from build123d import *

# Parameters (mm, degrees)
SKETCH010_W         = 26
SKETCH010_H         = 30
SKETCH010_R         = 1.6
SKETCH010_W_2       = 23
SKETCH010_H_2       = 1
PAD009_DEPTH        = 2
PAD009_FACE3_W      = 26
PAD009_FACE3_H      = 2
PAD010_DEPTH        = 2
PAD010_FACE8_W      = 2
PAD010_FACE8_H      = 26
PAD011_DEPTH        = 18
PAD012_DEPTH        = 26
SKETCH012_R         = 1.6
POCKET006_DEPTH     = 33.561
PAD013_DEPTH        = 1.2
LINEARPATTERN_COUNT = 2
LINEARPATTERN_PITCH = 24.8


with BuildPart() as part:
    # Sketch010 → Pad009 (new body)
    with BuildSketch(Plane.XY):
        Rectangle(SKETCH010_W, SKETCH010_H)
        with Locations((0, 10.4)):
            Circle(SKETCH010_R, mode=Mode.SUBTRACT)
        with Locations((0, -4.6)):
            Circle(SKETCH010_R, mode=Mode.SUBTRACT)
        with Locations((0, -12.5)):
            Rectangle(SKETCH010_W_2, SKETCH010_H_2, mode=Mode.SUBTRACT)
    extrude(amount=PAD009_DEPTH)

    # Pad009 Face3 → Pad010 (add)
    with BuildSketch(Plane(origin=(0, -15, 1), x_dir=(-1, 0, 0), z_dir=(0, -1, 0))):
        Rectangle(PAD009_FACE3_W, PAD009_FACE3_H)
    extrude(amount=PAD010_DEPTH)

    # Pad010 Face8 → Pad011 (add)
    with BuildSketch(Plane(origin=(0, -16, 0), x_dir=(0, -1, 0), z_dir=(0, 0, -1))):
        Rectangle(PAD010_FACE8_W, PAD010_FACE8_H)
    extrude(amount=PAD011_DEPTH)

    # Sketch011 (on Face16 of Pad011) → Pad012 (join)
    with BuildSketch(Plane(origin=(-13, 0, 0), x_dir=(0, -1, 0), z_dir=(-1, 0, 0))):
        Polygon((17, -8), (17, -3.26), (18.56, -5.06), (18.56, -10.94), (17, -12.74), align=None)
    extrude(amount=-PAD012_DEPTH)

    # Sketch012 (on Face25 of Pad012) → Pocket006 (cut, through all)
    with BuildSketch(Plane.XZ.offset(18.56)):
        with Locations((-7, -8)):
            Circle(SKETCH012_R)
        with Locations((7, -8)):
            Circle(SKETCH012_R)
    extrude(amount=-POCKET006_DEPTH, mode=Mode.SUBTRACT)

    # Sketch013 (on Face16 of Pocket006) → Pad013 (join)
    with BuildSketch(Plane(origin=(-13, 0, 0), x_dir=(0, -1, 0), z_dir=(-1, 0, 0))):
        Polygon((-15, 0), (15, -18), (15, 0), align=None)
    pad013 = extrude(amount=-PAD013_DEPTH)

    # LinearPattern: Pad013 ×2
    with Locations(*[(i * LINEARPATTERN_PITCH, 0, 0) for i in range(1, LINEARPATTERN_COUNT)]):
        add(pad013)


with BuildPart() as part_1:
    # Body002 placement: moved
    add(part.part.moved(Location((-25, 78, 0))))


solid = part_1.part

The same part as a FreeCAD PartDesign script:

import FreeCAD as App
import Part
import Sketcher
Q = App.Units.Quantity

doc = App.newDocument("Part")
body = doc.addObject("PartDesign::Body", "Body")

# Sketch on XY plane
sketch1 = doc.addObject("Sketcher::SketchObject", "Sketch")
body.addObject(sketch1)
sketch1.AttachmentSupport = (doc.XY_Plane, [""])
sketch1.MapMode = "FlatFace"
sketch1.addGeometry(Part.LineSegment(App.Vector(-13, 15, 0), App.Vector(-13, -15, 0)), False)
sketch1.addGeometry(Part.LineSegment(App.Vector(-13, -15, 0), App.Vector(13, -15, 0)), False)
sketch1.addGeometry(Part.LineSegment(App.Vector(13, -15, 0), App.Vector(13, 15, 0)), False)
sketch1.addGeometry(Part.LineSegment(App.Vector(13, 15, 0), App.Vector(-13, 15, 0)), False)
sketch1.addGeometry(Part.LineSegment(App.Vector(11.5, -13, 0), App.Vector(-11.5, -13, 0)), False)
sketch1.addGeometry(Part.LineSegment(App.Vector(-11.5, -13, 0), App.Vector(-11.5, -12, 0)), False)
sketch1.addGeometry(Part.LineSegment(App.Vector(-11.5, -12, 0), App.Vector(11.5, -12, 0)), False)
sketch1.addGeometry(Part.LineSegment(App.Vector(11.5, -12, 0), App.Vector(11.5, -13, 0)), False)
sketch1.addGeometry(Part.Circle(App.Vector(0, -4.6, 0), App.Vector(0, 0, 1), 1.6), False)
sketch1.addGeometry(Part.Circle(App.Vector(0, 10.4, 0), App.Vector(0, 0, 1), 1.6), False)
sketch1.addConstraint(Sketcher.Constraint("Coincident", 0, 2, 1, 1))
sketch1.addConstraint(Sketcher.Constraint("Coincident", 1, 2, 2, 1))
sketch1.addConstraint(Sketcher.Constraint("Coincident", 2, 2, 3, 1))
sketch1.addConstraint(Sketcher.Constraint("Coincident", 3, 2, 0, 1))
sketch1.addConstraint(Sketcher.Constraint("Coincident", 4, 2, 5, 1))
sketch1.addConstraint(Sketcher.Constraint("Coincident", 5, 2, 6, 1))
sketch1.addConstraint(Sketcher.Constraint("Coincident", 6, 2, 7, 1))
sketch1.addConstraint(Sketcher.Constraint("Coincident", 7, 2, 4, 1))
sketch1.addConstraint(Sketcher.Constraint("Vertical", 0))
sketch1.addConstraint(Sketcher.Constraint("Horizontal", 1))
sketch1.addConstraint(Sketcher.Constraint("Vertical", 2))
sketch1.addConstraint(Sketcher.Constraint("Horizontal", 3))
sketch1.addConstraint(Sketcher.Constraint("Horizontal", 4))
sketch1.addConstraint(Sketcher.Constraint("Vertical", 5))
sketch1.addConstraint(Sketcher.Constraint("Horizontal", 6))
sketch1.addConstraint(Sketcher.Constraint("Vertical", 7))
sketch1.addConstraint(Sketcher.Constraint("Equal", 8, 9))
sketch1.addConstraint(Sketcher.Constraint("Symmetric", 0, 2, 2, 2, -1, 1))
sketch1.addConstraint(Sketcher.Constraint("PointOnObject", 8, 3, -2))
sketch1.addConstraint(Sketcher.Constraint("PointOnObject", 9, 3, -2))
sketch1.addConstraint(Sketcher.Constraint("Diameter", 8, Q("3.2 mm")))
sketch1.addConstraint(Sketcher.Constraint("DistanceX", 1, 1, 1, 2, Q("26 mm")))
sketch1.addConstraint(Sketcher.Constraint("DistanceX", 4, 2, 4, 1, Q("23 mm")))
sketch1.addConstraint(Sketcher.Constraint("DistanceY", 0, 2, 0, 1, Q("30 mm")))
sketch1.addConstraint(Sketcher.Constraint("DistanceY", 5, 1, 5, 2, Q("1 mm")))
sketch1.addConstraint(Sketcher.Constraint("DistanceY", 4, 2, -1, 1, Q("13 mm")))
sketch1.addConstraint(Sketcher.Constraint("DistanceY", 8, 3, 9, 3, Q("15 mm")))
sketch1.addConstraint(Sketcher.Constraint("DistanceY", 8, 3, -1, 1, Q("4.6 mm")))
sketch1.addConstraint(Sketcher.Constraint("DistanceX", 4, 2, -1, 1, Q("11.5 mm")))
pad1 = doc.addObject("PartDesign::Pad", "Pad")
body.addObject(pad1)
pad1.Profile = sketch1
pad1.Length = 2

# Sketch on XZ plane
sketch2 = doc.addObject("Sketcher::SketchObject", "Sketch001")
body.addObject(sketch2)
sketch2.AttachmentSupport = (doc.XZ_Plane, [""])
sketch2.MapMode = "FlatFace"
sketch2.AttachmentOffset = App.Placement(App.Vector(0, 0, 15), App.Rotation())
sketch2.addGeometry(Part.LineSegment(App.Vector(13, 0, 0), App.Vector(13, 2, 0)), False)
sketch2.addGeometry(Part.LineSegment(App.Vector(13, 2, 0), App.Vector(-13, 2, 0)), False)
sketch2.addGeometry(Part.LineSegment(App.Vector(-13, 2, 0), App.Vector(-13, 0, 0)), False)
sketch2.addGeometry(Part.LineSegment(App.Vector(-13, 0, 0), App.Vector(13, 0, 0)), False)
sketch2.addConstraint(Sketcher.Constraint("Coincident", 0, 2, 1, 1))
sketch2.addConstraint(Sketcher.Constraint("Coincident", 1, 2, 2, 1))
sketch2.addConstraint(Sketcher.Constraint("Coincident", 2, 2, 3, 1))
sketch2.addConstraint(Sketcher.Constraint("Coincident", 3, 2, 0, 1))
sketch2.addConstraint(Sketcher.Constraint("Vertical", 0))
sketch2.addConstraint(Sketcher.Constraint("Horizontal", 1))
sketch2.addConstraint(Sketcher.Constraint("Vertical", 2))
sketch2.addConstraint(Sketcher.Constraint("Horizontal", 3))
sketch2.addConstraint(Sketcher.Constraint("Symmetric", 2, 2, 3, 2, -1, 1))
sketch2.addConstraint(Sketcher.Constraint("DistanceX", 1, 2, 1, 1, Q("26 mm")))
sketch2.addConstraint(Sketcher.Constraint("DistanceY", 0, 1, 0, 2, Q("2 mm")))
pad2 = doc.addObject("PartDesign::Pad", "Pad001")
body.addObject(pad2)
pad2.Profile = sketch2
pad2.Length = 2

# Sketch on XY plane
sketch3 = doc.addObject("Sketcher::SketchObject", "Sketch002")
body.addObject(sketch3)
sketch3.AttachmentSupport = (doc.XY_Plane, [""])
sketch3.MapMode = "FlatFace"
sketch3.addGeometry(Part.LineSegment(App.Vector(-13, -15, 0), App.Vector(13, -15, 0)), False)
sketch3.addGeometry(Part.LineSegment(App.Vector(13, -15, 0), App.Vector(13, -17, 0)), False)
sketch3.addGeometry(Part.LineSegment(App.Vector(13, -17, 0), App.Vector(-13, -17, 0)), False)
sketch3.addGeometry(Part.LineSegment(App.Vector(-13, -17, 0), App.Vector(-13, -15, 0)), False)
sketch3.addConstraint(Sketcher.Constraint("Coincident", 0, 2, 1, 1))
sketch3.addConstraint(Sketcher.Constraint("Coincident", 1, 2, 2, 1))
sketch3.addConstraint(Sketcher.Constraint("Coincident", 2, 2, 3, 1))
sketch3.addConstraint(Sketcher.Constraint("Coincident", 3, 2, 0, 1))
sketch3.addConstraint(Sketcher.Constraint("Horizontal", 0))
sketch3.addConstraint(Sketcher.Constraint("Vertical", 1))
sketch3.addConstraint(Sketcher.Constraint("Horizontal", 2))
sketch3.addConstraint(Sketcher.Constraint("Vertical", 3))
sketch3.addConstraint(Sketcher.Constraint("DistanceX", 0, 1, 0, 2, Q("26 mm")))
sketch3.addConstraint(Sketcher.Constraint("DistanceY", 1, 2, 1, 1, Q("2 mm")))
sketch3.addConstraint(Sketcher.Constraint("DistanceX", -1, 1, 0, 2, Q("13 mm")))
sketch3.addConstraint(Sketcher.Constraint("DistanceY", 0, 2, -1, 1, Q("15 mm")))
pad3 = doc.addObject("PartDesign::Pad", "Pad002")
body.addObject(pad3)
pad3.Profile = sketch3
pad3.Length = 18
pad3.Reversed = True

# Sketch on YZ plane
sketch4 = doc.addObject("Sketcher::SketchObject", "Sketch003")
body.addObject(sketch4)
sketch4.AttachmentSupport = (doc.YZ_Plane, [""])
sketch4.MapMode = "FlatFace"
sketch4.AttachmentOffset = App.Placement(App.Vector(0, 0, -13), App.Rotation())
sketch4.addGeometry(Part.LineSegment(App.Vector(-17, -3.3, 0), App.Vector(-17, -12.7, 0)), False)
sketch4.addGeometry(Part.LineSegment(App.Vector(-17, -12.7, 0), App.Vector(-18.6, -10.9, 0)), False)
sketch4.addGeometry(Part.LineSegment(App.Vector(-18.6, -10.9, 0), App.Vector(-18.6, -5.1, 0)), False)
sketch4.addGeometry(Part.LineSegment(App.Vector(-18.6, -5.1, 0), App.Vector(-17, -3.3, 0)), False)
sketch4.addConstraint(Sketcher.Constraint("Coincident", 0, 2, 1, 1))
sketch4.addConstraint(Sketcher.Constraint("Coincident", 1, 2, 2, 1))
sketch4.addConstraint(Sketcher.Constraint("Coincident", 2, 2, 3, 1))
sketch4.addConstraint(Sketcher.Constraint("Coincident", 3, 2, 0, 1))
sketch4.addConstraint(Sketcher.Constraint("Vertical", 0))
sketch4.addConstraint(Sketcher.Constraint("Vertical", 2))
sketch4.addConstraint(Sketcher.Constraint("Equal", 1, 3))
sketch4.addConstraint(Sketcher.Constraint("DistanceX", 0, 2, -1, 1, Q("17 mm")))
sketch4.addConstraint(Sketcher.Constraint("DistanceY", 0, 2, 0, 1, Q("9.48 mm")))
sketch4.addConstraint(Sketcher.Constraint("DistanceY", 2, 1, 2, 2, Q("5.88 mm")))
sketch4.addConstraint(Sketcher.Constraint("DistanceY", 0, 2, -1, 1, Q("12.74 mm")))
sketch4.addConstraint(Sketcher.Constraint("DistanceX", 1, 2, -1, 1, Q("18.56 mm")))
pad4 = doc.addObject("PartDesign::Pad", "Pad003")
body.addObject(pad4)
pad4.Profile = sketch4
pad4.Length = 26

# Sketch on XZ plane
sketch5 = doc.addObject("Sketcher::SketchObject", "Sketch004")
body.addObject(sketch5)
sketch5.AttachmentSupport = (doc.XZ_Plane, [""])
sketch5.MapMode = "FlatFace"
sketch5.AttachmentOffset = App.Placement(App.Vector(0, 0, 18.56), App.Rotation())
sketch5.addGeometry(Part.Circle(App.Vector(-7, -8, 0), App.Vector(0, 0, 1), 1.6), False)
sketch5.addGeometry(Part.Circle(App.Vector(7, -8, 0), App.Vector(0, 0, 1), 1.6), False)
sketch5.addConstraint(Sketcher.Constraint("Equal", 0, 1))
sketch5.addConstraint(Sketcher.Constraint("Symmetric", 0, 3, 1, 3, -2))
sketch5.addConstraint(Sketcher.Constraint("Diameter", 0, Q("3.2 mm")))
sketch5.addConstraint(Sketcher.Constraint("DistanceX", 0, 3, -1, 1, Q("7 mm")))
sketch5.addConstraint(Sketcher.Constraint("DistanceY", 0, 3, -1, 1, Q("8 mm")))
pocket1 = doc.addObject("PartDesign::Pocket", "Pocket")
body.addObject(pocket1)
pocket1.Profile = sketch5
pocket1.Type = "ThroughAll"

# Sketch on YZ plane
sketch6 = doc.addObject("Sketcher::SketchObject", "Sketch005")
body.addObject(sketch6)
sketch6.AttachmentSupport = (doc.YZ_Plane, [""])
sketch6.MapMode = "FlatFace"
sketch6.AttachmentOffset = App.Placement(App.Vector(0, 0, -13), App.Rotation())
sketch6.addGeometry(Part.LineSegment(App.Vector(15, 0, 0), App.Vector(-15, -18, 0)), False)
sketch6.addGeometry(Part.LineSegment(App.Vector(-15, -18, 0), App.Vector(-15, 0, 0)), False)
sketch6.addGeometry(Part.LineSegment(App.Vector(-15, 0, 0), App.Vector(15, 0, 0)), False)
sketch6.addConstraint(Sketcher.Constraint("Coincident", 0, 2, 1, 1))
sketch6.addConstraint(Sketcher.Constraint("Coincident", 1, 2, 2, 1))
sketch6.addConstraint(Sketcher.Constraint("Coincident", 2, 2, 0, 1))
sketch6.addConstraint(Sketcher.Constraint("Vertical", 1))
sketch6.addConstraint(Sketcher.Constraint("Horizontal", 2))
sketch6.addConstraint(Sketcher.Constraint("Symmetric", 1, 2, 2, 2, -1, 1))
sketch6.addConstraint(Sketcher.Constraint("DistanceX", 2, 1, 2, 2, Q("30 mm")))
sketch6.addConstraint(Sketcher.Constraint("DistanceY", 1, 1, 1, 2, Q("18 mm")))
pad5 = doc.addObject("PartDesign::Pad", "Pad004")
body.addObject(pad5)
pad5.Profile = sketch6
pad5.Length = 1.2
doc.recompute()

linearpattern = doc.addObject("PartDesign::LinearPattern", "LinearPattern")
body.addObject(linearpattern)
linearpattern.Originals = [pad5]
linearpattern.Direction = (doc.X_Axis, [""])
linearpattern.Mode = "offset"
linearpattern.Offset = 24.8
linearpattern.Occurrences = 2
body.Tip = linearpattern
body2 = doc.addObject("PartDesign::Body", "Body001")
doc.recompute()

body.Placement = App.Placement(App.Vector(-25, 78, 0), App.Rotation(App.Vector(0, 0, 1), 0))
boolean = doc.addObject("PartDesign::Boolean", "Boolean")
body2.addObject(boolean)
boolean.Type = "Fuse"
boolean.addObjects([body])

doc.recompute()
